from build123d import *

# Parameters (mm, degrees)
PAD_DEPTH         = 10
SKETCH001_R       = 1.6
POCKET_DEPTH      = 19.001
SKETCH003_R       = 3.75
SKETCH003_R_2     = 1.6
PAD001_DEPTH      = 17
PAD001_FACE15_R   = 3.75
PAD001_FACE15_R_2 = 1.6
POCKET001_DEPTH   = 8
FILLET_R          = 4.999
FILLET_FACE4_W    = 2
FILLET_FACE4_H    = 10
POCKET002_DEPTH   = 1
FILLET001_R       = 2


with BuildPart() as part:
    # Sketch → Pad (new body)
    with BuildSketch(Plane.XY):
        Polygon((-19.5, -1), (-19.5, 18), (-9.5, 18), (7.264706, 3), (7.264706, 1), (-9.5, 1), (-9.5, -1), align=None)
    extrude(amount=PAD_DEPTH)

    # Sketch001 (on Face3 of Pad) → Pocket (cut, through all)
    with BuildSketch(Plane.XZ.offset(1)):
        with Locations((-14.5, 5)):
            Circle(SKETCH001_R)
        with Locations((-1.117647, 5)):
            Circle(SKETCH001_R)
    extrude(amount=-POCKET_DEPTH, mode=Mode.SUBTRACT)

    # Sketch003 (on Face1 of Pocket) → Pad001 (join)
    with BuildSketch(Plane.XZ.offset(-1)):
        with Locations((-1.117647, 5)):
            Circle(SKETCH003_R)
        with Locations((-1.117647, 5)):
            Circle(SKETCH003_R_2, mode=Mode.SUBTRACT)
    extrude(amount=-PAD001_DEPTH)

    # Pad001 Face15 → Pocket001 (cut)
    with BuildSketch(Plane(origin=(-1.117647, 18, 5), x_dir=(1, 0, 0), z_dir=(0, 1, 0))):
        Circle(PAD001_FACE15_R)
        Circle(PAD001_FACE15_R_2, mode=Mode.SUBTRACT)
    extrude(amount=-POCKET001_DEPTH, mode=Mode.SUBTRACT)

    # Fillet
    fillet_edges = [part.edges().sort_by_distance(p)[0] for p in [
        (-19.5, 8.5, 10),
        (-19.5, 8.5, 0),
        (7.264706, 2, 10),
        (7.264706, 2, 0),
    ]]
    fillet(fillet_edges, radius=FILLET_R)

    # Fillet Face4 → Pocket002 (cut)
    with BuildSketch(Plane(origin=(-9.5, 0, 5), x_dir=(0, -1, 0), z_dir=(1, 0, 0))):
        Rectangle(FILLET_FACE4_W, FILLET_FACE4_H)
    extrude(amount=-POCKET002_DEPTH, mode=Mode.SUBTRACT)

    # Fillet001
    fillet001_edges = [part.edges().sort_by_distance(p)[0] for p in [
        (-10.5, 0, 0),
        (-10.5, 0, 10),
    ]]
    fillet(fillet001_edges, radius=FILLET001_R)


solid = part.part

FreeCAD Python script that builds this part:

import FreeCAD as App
import Part
import Sketcher

V = App.Vector
Q = App.Units.Quantity


def edges_at(feature, points):
    """Names of the edges that pass closest to the given points."""
    edges = feature.Shape.Edges
    near = lambda p: min(range(len(edges)), key=lambda i: edges[i].distToShape(Part.Vertex(*p))[0])
    return sorted({f"Edge{near(p) + 1}" for p in points})


def add_polygon(sketch, points):
    """Adds a closed chain of lines whose ends are joined by coincident constraints."""
    first, n = sketch.GeometryCount, len(points)
    for a, b in zip(points, points[1:] + points[:1]):
        sketch.addGeometry(Part.LineSegment(App.Vector(*a, 0), App.Vector(*b, 0)), False)
    for i in range(n):
        sketch.addConstraint(Sketcher.Constraint("Coincident", first + i, 2, first + (i + 1) % n, 1))

doc = App.newDocument("Part")
body = doc.addObject("PartDesign::Body", "Body")

# Sketch on XY plane
sketch1 = doc.addObject("Sketcher::SketchObject", "Sketch")
body.addObject(sketch1)
sketch1.AttachmentSupport = (doc.XY_Plane, [""])
sketch1.MapMode = "FlatFace"
add_polygon(sketch1, [(-19.5, 18), (-19.5, -1), (-9.5, -1), (-9.5, 1), (7.3, 1), (7.3, 3), (-9.5, 18)])  # lines 0-6
sketch1.addConstraint(Sketcher.Constraint("Vertical", 0))
sketch1.addConstraint(Sketcher.Constraint("Horizontal", 1))
sketch1.addConstraint(Sketcher.Constraint("Vertical", 2))
sketch1.addConstraint(Sketcher.Constraint("Horizontal", 3))
sketch1.addConstraint(Sketcher.Constraint("Vertical", 4))
sketch1.addConstraint(Sketcher.Constraint("Horizontal", 6))
sketch1.addConstraint(Sketcher.Constraint("Vertical", 2, 2, 5, 2))
sketch1.addConstraint(Sketcher.Constraint("Equal", 2, 4))
sketch1.addConstraint(Sketcher.Constraint("DistanceX", 1, 1, 1, 2, Q("10 mm")))
sketch1.addConstraint(Sketcher.Constraint("DistanceY", 0, 2, 0, 1, Q("19 mm")))
sketch1.addConstraint(Sketcher.Constraint("DistanceY", 2, 1, 2, 2, Q("2 mm")))
sketch1.addConstraint(Sketcher.Constraint("DistanceY", 0, 2, -1, 1, Q("1 mm")))
sketch1.addConstraint(Sketcher.Constraint("DistanceX", 0, 2, -1, 1, Q("19.5 mm")))
sketch1.addConstraint(Sketcher.Constraint("DistanceX", 3, 1, 3, 2, Q("16.764706 mm")))
pad1 = doc.addObject("PartDesign::Pad", "Pad")
body.addObject(pad1)
pad1.Profile = sketch1
pad1.Length = 10

# Sketch on XZ plane
sketch2 = doc.addObject("Sketcher::SketchObject", "Sketch001")
body.addObject(sketch2)
sketch2.AttachmentSupport = (doc.XZ_Plane, [""])
sketch2.MapMode = "FlatFace"
sketch2.AttachmentOffset = App.Placement(V(0, 0, 1), App.Rotation())
sketch2.addGeometry(Part.Circle(V(-14.5, 5, 0), V(0, 0, 1), 1.6), False)
sketch2.addGeometry(Part.Circle(V(-1.1, 5, 0), V(0, 0, 1), 1.6), False)
sketch2.addConstraint(Sketcher.Constraint("Equal", 0, 1))
sketch2.addConstraint(Sketcher.Constraint("Horizontal", 0, 3, 1, 3))
sketch2.addConstraint(Sketcher.Constraint("Diameter", 0, Q("3.2 mm")))
sketch2.addConstraint(Sketcher.Constraint("DistanceY", -1, 1, 0, 3, Q("5 mm")))
sketch2.addConstraint(Sketcher.Constraint("DistanceX", 0, 3, -1, 1, Q("14.5 mm")))
sketch2.addConstraint(Sketcher.Constraint("DistanceX", 1, 3, -1, 1, Q("1.117647 mm")))
pocket1 = doc.addObject("PartDesign::Pocket", "Pocket")
body.addObject(pocket1)
pocket1.Profile = sketch2
pocket1.Type = "ThroughAll"

# Sketch on XZ plane
sketch3 = doc.addObject("Sketcher::SketchObject", "Sketch002")
body.addObject(sketch3)
sketch3.AttachmentSupport = (doc.XZ_Plane, [""])
sketch3.MapMode = "FlatFace"
sketch3.AttachmentOffset = App.Placement(V(0, 0, -1), App.Rotation())
sketch3.addGeometry(Part.Circle(V(-1.1, 5, 0), V(0, 0, 1), 3.8), False)
sketch3.addGeometry(Part.Circle(V(-1.1, 5, 0), V(0, 0, 1), 1.6), False)
sketch3.addConstraint(Sketcher.Constraint("Coincident", 1, 3, 0, 3))
sketch3.addConstraint(Sketcher.Constraint("Diameter", 0, Q("7.5 mm")))
sketch3.addConstraint(Sketcher.Constraint("Diameter", 1, Q("3.2 mm")))
sketch3.addConstraint(Sketcher.Constraint("DistanceY", -1, 1, 0, 3, Q("5 mm")))
sketch3.addConstraint(Sketcher.Constraint("DistanceX", 0, 3, -1, 1, Q("1.117647 mm")))
pad2 = doc.addObject("PartDesign::Pad", "Pad001")
body.addObject(pad2)
pad2.Profile = sketch3
pad2.Length = 17
pad2.Reversed = True

# Sketch on XZ plane
sketch4 = doc.addObject("Sketcher::SketchObject", "Sketch003")
body.addObject(sketch4)
sketch4.AttachmentSupport = (doc.XZ_Plane, [""])
sketch4.MapMode = "FlatFace"
sketch4.AttachmentOffset = App.Placement(V(0, 0, -18), App.Rotation())
sketch4.addGeometry(Part.Circle(V(-1.1, 5, 0), V(0, 0, 1), 3.8), False)
sketch4.addGeometry(Part.Circle(V(-1.1, 5, 0), V(0, 0, 1), 1.6), False)
sketch4.addConstraint(Sketcher.Constraint("Coincident", 1, 3, 0, 3))
sketch4.addConstraint(Sketcher.Constraint("Diameter", 0, Q("7.5 mm")))
sketch4.addConstraint(Sketcher.Constraint("Diameter", 1, Q("3.2 mm")))
sketch4.addConstraint(Sketcher.Constraint("DistanceY", -1, 1, 0, 3, Q("5 mm")))
sketch4.addConstraint(Sketcher.Constraint("DistanceX", 0, 3, -1, 1, Q("1.117647 mm")))
pocket2 = doc.addObject("PartDesign::Pocket", "Pocket001")
body.addObject(pocket2)
pocket2.Profile = sketch4
pocket2.Length = 8
pocket2.Reversed = True
doc.recompute()

fillet = doc.addObject("PartDesign::Fillet", "Fillet")
body.addObject(fillet)
fillet.Base = (pocket2, edges_at(pocket2, [
    (-19.5, 8.5, 10),
    (-19.5, 8.5, 0),
    (7.265, 2, 10),
    (7.265, 2, 0),
]))
fillet.Radius = 4.999

# Sketch on YZ plane
sketch5 = doc.addObject("Sketcher::SketchObject", "Sketch004")
body.addObject(sketch5)
sketch5.AttachmentSupport = (doc.YZ_Plane, [""])
sketch5.MapMode = "FlatFace"
sketch5.AttachmentOffset = App.Placement(V(0, 0, -9.5), App.Rotation())
add_polygon(sketch5, [(1, 0), (1, 10), (-1, 10), (-1, 0)])  # lines 0-3
sketch5.addConstraint(Sketcher.Constraint("Vertical", 0))
sketch5.addConstraint(Sketcher.Constraint("Horizontal", 1))
sketch5.addConstraint(Sketcher.Constraint("Vertical", 2))
sketch5.addConstraint(Sketcher.Constraint("Horizontal", 3))
sketch5.addConstraint(Sketcher.Constraint("Symmetric", 2, 2, 3, 2, -1, 1))
sketch5.addConstraint(Sketcher.Constraint("DistanceX", 1, 2, 1, 1, Q("2 mm")))
sketch5.addConstraint(Sketcher.Constraint("DistanceY", 0, 1, 0, 2, Q("10 mm")))
pocket3 = doc.addObject("PartDesign::Pocket", "Pocket002")
body.addObject(pocket3)
pocket3.Profile = sketch5
pocket3.Length = 1
doc.recompute()

fillet2 = doc.addObject("PartDesign::Fillet", "Fillet001")
body.addObject(fillet2)
fillet2.Base = (pocket3, edges_at(pocket3, [(-10.5, 0, 0), (-10.5, 0, 10)]))
fillet2.Radius = 2

doc.recompute()
